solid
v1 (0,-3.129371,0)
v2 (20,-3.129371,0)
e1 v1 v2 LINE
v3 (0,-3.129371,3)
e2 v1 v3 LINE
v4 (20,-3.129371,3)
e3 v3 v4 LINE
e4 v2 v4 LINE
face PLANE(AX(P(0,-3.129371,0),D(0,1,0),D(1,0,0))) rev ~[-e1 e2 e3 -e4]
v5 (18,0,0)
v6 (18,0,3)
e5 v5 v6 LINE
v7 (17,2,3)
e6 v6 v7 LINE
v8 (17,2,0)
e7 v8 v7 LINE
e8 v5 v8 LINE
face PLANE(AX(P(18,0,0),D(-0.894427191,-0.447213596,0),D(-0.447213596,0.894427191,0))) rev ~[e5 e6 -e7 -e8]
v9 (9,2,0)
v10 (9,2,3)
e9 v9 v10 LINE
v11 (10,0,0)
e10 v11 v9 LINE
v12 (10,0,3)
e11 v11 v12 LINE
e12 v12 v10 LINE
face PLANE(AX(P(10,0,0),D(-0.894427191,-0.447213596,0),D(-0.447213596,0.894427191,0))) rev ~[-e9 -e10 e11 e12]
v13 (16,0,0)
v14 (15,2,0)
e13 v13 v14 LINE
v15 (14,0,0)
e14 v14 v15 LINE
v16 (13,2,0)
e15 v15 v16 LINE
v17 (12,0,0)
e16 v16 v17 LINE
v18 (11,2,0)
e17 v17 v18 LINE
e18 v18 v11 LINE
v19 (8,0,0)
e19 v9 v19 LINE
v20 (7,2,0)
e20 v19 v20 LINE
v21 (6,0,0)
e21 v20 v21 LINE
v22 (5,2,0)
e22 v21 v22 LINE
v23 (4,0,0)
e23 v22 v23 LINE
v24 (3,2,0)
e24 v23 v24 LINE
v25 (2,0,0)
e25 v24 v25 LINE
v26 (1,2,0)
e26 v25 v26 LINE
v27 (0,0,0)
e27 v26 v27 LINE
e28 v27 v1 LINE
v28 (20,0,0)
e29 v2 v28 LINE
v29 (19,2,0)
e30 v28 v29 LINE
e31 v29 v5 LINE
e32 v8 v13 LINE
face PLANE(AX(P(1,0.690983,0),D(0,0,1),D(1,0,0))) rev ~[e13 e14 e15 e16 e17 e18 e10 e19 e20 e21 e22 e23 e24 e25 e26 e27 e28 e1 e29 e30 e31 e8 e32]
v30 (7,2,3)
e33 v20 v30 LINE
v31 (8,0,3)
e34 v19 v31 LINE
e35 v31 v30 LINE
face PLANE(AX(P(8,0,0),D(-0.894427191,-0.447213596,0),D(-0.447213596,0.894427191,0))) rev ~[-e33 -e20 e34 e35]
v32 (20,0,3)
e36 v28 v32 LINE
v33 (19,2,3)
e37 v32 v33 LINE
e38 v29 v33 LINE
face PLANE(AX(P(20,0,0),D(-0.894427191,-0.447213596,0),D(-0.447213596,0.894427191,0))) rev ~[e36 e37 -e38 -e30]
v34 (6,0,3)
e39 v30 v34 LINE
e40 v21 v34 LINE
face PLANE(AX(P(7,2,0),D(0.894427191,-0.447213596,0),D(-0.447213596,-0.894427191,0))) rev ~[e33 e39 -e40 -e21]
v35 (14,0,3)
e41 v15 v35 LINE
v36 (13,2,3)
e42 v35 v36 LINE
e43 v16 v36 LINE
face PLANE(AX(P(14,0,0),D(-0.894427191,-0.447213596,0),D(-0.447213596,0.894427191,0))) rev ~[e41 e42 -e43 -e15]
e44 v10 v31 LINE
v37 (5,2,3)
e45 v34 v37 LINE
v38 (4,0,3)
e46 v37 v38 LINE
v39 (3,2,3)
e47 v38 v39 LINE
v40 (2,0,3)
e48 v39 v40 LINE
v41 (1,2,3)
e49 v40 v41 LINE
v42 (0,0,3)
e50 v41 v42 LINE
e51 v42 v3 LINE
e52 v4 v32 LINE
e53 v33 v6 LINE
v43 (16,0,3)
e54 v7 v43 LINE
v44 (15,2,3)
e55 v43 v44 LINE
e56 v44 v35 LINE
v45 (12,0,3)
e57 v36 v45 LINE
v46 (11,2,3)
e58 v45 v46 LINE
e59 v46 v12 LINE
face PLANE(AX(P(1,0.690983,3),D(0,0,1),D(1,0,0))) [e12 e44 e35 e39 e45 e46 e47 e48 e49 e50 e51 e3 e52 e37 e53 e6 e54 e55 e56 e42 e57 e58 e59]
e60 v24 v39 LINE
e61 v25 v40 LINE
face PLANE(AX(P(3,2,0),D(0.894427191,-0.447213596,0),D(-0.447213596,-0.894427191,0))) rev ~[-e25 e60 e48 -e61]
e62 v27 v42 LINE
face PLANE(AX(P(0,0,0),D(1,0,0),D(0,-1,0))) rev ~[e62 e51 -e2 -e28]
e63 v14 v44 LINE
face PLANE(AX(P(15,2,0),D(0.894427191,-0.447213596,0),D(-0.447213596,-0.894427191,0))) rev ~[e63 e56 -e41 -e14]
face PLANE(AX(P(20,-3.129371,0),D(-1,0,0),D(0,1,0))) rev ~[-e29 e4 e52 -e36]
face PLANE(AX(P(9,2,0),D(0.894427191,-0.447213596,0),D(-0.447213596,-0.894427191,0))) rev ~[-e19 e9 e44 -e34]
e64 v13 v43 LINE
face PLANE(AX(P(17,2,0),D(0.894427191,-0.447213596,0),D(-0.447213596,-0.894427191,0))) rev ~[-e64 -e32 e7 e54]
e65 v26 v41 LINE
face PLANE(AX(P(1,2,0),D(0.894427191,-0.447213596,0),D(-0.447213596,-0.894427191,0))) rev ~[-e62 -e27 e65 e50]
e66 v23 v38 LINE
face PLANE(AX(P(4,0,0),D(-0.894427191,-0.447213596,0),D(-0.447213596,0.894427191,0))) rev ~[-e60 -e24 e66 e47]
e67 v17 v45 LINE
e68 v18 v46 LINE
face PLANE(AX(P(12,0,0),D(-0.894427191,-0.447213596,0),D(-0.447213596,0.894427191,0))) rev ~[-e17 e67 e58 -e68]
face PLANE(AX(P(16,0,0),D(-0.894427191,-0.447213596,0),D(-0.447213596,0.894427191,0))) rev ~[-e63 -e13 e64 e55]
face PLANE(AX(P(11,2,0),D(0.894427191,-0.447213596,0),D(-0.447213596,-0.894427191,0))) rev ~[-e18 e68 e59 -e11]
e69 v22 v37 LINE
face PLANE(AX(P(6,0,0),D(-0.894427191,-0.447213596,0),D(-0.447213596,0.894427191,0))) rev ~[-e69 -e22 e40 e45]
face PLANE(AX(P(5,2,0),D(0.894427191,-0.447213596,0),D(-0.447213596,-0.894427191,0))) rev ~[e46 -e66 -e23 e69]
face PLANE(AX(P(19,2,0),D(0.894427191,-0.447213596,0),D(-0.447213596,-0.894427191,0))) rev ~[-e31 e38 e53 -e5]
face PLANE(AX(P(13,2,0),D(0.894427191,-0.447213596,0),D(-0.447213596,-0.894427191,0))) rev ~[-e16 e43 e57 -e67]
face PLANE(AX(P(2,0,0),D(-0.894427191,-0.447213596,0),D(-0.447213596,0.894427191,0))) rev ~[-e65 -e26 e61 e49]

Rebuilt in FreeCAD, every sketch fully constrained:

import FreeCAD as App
import Part
import Sketcher
from FreeCAD import Vector
Q = App.Units.Quantity


def add_polygon(sketch, points):
    """Adds a closed chain of lines whose ends are joined by coincident constraints."""
    first, n = sketch.GeometryCount, len(points)
    for a, b in zip(points, points[1:] + points[:1]):
        sketch.addGeometry(Part.LineSegment(App.Vector(*a, 0), App.Vector(*b, 0)), False)
    for i in range(n):
        sketch.addConstraint(Sketcher.Constraint("Coincident", first + i, 2, first + (i + 1) % n, 1))

doc = App.newDocument("Part")
params = doc.addObject("Spreadsheet::Sheet", "Params")
for row, (alias, value) in enumerate([
    ("sketch1_width", "20 mm"),
    ("pad1_length", "3 mm"),
], start=1):
    params.set(f"A{row}", alias)
    params.set(f"B{row}", "=" + value)
    params.setAlias(f"B{row}", alias)

body = doc.addObject("PartDesign::Body", "Body")

# Sketch on XY plane
sketch1 = body.newObject("Sketcher::SketchObject", "Sketch")
sketch1.AttachmentSupport = (doc.getObject("XY_Plane"), [""])
sketch1.MapMode = "FlatFace"
add_polygon(sketch1, [(1, 2), (0, 0), (0, -3.1), (20, -3.1), (20, 0), (19, 2), (18, 0), (17, 2), (16, 0), (15, 2), (14, 0), (13, 2), (12, 0), (11, 2), (10, 0), (9, 2), (8, 0), (7, 2), (6, 0), (5, 2), (4, 0), (3, 2), (2, 0)])  # lines 0-22
sketch1.addConstraint([
    Sketcher.Constraint("Vertical", 1),
    Sketcher.Constraint("Horizontal", 2),
    Sketcher.Constraint("Vertical", 3),
    Sketcher.Constraint("Coincident", 0, 2, -1, 1),
    Sketcher.Constraint("PointOnObject", 3, 2, -1),
    Sketcher.Constraint("PointOnObject", 5, 2, -1),
    Sketcher.Constraint("PointOnObject", 7, 2, -1),
    Sketcher.Constraint("PointOnObject", 9, 2, -1),
    Sketcher.Constraint("PointOnObject", 11, 2, -1),
    Sketcher.Constraint("PointOnObject", 13, 2, -1),
    Sketcher.Constraint("PointOnObject", 15, 2, -1),
    Sketcher.Constraint("PointOnObject", 17, 2, -1),
    Sketcher.Constraint("PointOnObject", 19, 2, -1),
    Sketcher.Constraint("PointOnObject", 21, 2, -1),
    Sketcher.Constraint("Parallel", 0, 5),
    Sketcher.Constraint("Parallel", 4, 6),
    Sketcher.Constraint("Parallel", 5, 7),
    Sketcher.Constraint("Parallel", 6, 8),
    Sketcher.Constraint("Parallel", 7, 9),
    Sketcher.Constraint("Parallel", 8, 10),
    Sketcher.Constraint("Parallel", 9, 11),
    Sketcher.Constraint("Parallel", 10, 12),
    Sketcher.Constraint("Parallel", 11, 13),
    Sketcher.Constraint("Parallel", 12, 14),
    Sketcher.Constraint("Parallel", 13, 15),
    Sketcher.Constraint("Parallel", 14, 16),
    Sketcher.Constraint("Parallel", 15, 17),
    Sketcher.Constraint("Parallel", 16, 18),
    Sketcher.Constraint("Parallel", 17, 19),
    Sketcher.Constraint("Parallel", 18, 20),
    Sketcher.Constraint("Parallel", 19, 21),
    Sketcher.Constraint("Parallel", 20, 22),
    Sketcher.Constraint("Horizontal", 4, 2, 6, 2),
    Sketcher.Constraint("Horizontal", 6, 2, 8, 2),
    Sketcher.Constraint("Horizontal", 8, 2, 10, 2),
    Sketcher.Constraint("Horizontal", 10, 2, 12, 2),
    Sketcher.Constraint("Horizontal", 12, 2, 14, 2),
    Sketcher.Constraint("Horizontal", 14, 2, 16, 2),
    Sketcher.Constraint("Horizontal", 16, 2, 18, 2),
    Sketcher.Constraint("Horizontal", 18, 2, 20, 2),
    Sketcher.Constraint("Horizontal", 20, 2, 22, 2),
    Sketcher.Constraint("Equal", 0, 4),
    Sketcher.Constraint("DistanceX", 2, 1, 2, 2, Q("20 mm")),
    Sketcher.Constraint("DistanceY", -1, 1, 4, 2, Q("2 mm")),
    Sketcher.Constraint("DistanceY", 1, 2, 1, 1, Q("3.129371 mm")),
])
sketch1.setExpression("Constraints[65]", "Params.sketch1_width")
pad1 = body.newObject("PartDesign::Pad", "Pad")
pad1.Profile = sketch1
pad1.setExpression("Length", "Params.pad1_length")

doc.recompute()
